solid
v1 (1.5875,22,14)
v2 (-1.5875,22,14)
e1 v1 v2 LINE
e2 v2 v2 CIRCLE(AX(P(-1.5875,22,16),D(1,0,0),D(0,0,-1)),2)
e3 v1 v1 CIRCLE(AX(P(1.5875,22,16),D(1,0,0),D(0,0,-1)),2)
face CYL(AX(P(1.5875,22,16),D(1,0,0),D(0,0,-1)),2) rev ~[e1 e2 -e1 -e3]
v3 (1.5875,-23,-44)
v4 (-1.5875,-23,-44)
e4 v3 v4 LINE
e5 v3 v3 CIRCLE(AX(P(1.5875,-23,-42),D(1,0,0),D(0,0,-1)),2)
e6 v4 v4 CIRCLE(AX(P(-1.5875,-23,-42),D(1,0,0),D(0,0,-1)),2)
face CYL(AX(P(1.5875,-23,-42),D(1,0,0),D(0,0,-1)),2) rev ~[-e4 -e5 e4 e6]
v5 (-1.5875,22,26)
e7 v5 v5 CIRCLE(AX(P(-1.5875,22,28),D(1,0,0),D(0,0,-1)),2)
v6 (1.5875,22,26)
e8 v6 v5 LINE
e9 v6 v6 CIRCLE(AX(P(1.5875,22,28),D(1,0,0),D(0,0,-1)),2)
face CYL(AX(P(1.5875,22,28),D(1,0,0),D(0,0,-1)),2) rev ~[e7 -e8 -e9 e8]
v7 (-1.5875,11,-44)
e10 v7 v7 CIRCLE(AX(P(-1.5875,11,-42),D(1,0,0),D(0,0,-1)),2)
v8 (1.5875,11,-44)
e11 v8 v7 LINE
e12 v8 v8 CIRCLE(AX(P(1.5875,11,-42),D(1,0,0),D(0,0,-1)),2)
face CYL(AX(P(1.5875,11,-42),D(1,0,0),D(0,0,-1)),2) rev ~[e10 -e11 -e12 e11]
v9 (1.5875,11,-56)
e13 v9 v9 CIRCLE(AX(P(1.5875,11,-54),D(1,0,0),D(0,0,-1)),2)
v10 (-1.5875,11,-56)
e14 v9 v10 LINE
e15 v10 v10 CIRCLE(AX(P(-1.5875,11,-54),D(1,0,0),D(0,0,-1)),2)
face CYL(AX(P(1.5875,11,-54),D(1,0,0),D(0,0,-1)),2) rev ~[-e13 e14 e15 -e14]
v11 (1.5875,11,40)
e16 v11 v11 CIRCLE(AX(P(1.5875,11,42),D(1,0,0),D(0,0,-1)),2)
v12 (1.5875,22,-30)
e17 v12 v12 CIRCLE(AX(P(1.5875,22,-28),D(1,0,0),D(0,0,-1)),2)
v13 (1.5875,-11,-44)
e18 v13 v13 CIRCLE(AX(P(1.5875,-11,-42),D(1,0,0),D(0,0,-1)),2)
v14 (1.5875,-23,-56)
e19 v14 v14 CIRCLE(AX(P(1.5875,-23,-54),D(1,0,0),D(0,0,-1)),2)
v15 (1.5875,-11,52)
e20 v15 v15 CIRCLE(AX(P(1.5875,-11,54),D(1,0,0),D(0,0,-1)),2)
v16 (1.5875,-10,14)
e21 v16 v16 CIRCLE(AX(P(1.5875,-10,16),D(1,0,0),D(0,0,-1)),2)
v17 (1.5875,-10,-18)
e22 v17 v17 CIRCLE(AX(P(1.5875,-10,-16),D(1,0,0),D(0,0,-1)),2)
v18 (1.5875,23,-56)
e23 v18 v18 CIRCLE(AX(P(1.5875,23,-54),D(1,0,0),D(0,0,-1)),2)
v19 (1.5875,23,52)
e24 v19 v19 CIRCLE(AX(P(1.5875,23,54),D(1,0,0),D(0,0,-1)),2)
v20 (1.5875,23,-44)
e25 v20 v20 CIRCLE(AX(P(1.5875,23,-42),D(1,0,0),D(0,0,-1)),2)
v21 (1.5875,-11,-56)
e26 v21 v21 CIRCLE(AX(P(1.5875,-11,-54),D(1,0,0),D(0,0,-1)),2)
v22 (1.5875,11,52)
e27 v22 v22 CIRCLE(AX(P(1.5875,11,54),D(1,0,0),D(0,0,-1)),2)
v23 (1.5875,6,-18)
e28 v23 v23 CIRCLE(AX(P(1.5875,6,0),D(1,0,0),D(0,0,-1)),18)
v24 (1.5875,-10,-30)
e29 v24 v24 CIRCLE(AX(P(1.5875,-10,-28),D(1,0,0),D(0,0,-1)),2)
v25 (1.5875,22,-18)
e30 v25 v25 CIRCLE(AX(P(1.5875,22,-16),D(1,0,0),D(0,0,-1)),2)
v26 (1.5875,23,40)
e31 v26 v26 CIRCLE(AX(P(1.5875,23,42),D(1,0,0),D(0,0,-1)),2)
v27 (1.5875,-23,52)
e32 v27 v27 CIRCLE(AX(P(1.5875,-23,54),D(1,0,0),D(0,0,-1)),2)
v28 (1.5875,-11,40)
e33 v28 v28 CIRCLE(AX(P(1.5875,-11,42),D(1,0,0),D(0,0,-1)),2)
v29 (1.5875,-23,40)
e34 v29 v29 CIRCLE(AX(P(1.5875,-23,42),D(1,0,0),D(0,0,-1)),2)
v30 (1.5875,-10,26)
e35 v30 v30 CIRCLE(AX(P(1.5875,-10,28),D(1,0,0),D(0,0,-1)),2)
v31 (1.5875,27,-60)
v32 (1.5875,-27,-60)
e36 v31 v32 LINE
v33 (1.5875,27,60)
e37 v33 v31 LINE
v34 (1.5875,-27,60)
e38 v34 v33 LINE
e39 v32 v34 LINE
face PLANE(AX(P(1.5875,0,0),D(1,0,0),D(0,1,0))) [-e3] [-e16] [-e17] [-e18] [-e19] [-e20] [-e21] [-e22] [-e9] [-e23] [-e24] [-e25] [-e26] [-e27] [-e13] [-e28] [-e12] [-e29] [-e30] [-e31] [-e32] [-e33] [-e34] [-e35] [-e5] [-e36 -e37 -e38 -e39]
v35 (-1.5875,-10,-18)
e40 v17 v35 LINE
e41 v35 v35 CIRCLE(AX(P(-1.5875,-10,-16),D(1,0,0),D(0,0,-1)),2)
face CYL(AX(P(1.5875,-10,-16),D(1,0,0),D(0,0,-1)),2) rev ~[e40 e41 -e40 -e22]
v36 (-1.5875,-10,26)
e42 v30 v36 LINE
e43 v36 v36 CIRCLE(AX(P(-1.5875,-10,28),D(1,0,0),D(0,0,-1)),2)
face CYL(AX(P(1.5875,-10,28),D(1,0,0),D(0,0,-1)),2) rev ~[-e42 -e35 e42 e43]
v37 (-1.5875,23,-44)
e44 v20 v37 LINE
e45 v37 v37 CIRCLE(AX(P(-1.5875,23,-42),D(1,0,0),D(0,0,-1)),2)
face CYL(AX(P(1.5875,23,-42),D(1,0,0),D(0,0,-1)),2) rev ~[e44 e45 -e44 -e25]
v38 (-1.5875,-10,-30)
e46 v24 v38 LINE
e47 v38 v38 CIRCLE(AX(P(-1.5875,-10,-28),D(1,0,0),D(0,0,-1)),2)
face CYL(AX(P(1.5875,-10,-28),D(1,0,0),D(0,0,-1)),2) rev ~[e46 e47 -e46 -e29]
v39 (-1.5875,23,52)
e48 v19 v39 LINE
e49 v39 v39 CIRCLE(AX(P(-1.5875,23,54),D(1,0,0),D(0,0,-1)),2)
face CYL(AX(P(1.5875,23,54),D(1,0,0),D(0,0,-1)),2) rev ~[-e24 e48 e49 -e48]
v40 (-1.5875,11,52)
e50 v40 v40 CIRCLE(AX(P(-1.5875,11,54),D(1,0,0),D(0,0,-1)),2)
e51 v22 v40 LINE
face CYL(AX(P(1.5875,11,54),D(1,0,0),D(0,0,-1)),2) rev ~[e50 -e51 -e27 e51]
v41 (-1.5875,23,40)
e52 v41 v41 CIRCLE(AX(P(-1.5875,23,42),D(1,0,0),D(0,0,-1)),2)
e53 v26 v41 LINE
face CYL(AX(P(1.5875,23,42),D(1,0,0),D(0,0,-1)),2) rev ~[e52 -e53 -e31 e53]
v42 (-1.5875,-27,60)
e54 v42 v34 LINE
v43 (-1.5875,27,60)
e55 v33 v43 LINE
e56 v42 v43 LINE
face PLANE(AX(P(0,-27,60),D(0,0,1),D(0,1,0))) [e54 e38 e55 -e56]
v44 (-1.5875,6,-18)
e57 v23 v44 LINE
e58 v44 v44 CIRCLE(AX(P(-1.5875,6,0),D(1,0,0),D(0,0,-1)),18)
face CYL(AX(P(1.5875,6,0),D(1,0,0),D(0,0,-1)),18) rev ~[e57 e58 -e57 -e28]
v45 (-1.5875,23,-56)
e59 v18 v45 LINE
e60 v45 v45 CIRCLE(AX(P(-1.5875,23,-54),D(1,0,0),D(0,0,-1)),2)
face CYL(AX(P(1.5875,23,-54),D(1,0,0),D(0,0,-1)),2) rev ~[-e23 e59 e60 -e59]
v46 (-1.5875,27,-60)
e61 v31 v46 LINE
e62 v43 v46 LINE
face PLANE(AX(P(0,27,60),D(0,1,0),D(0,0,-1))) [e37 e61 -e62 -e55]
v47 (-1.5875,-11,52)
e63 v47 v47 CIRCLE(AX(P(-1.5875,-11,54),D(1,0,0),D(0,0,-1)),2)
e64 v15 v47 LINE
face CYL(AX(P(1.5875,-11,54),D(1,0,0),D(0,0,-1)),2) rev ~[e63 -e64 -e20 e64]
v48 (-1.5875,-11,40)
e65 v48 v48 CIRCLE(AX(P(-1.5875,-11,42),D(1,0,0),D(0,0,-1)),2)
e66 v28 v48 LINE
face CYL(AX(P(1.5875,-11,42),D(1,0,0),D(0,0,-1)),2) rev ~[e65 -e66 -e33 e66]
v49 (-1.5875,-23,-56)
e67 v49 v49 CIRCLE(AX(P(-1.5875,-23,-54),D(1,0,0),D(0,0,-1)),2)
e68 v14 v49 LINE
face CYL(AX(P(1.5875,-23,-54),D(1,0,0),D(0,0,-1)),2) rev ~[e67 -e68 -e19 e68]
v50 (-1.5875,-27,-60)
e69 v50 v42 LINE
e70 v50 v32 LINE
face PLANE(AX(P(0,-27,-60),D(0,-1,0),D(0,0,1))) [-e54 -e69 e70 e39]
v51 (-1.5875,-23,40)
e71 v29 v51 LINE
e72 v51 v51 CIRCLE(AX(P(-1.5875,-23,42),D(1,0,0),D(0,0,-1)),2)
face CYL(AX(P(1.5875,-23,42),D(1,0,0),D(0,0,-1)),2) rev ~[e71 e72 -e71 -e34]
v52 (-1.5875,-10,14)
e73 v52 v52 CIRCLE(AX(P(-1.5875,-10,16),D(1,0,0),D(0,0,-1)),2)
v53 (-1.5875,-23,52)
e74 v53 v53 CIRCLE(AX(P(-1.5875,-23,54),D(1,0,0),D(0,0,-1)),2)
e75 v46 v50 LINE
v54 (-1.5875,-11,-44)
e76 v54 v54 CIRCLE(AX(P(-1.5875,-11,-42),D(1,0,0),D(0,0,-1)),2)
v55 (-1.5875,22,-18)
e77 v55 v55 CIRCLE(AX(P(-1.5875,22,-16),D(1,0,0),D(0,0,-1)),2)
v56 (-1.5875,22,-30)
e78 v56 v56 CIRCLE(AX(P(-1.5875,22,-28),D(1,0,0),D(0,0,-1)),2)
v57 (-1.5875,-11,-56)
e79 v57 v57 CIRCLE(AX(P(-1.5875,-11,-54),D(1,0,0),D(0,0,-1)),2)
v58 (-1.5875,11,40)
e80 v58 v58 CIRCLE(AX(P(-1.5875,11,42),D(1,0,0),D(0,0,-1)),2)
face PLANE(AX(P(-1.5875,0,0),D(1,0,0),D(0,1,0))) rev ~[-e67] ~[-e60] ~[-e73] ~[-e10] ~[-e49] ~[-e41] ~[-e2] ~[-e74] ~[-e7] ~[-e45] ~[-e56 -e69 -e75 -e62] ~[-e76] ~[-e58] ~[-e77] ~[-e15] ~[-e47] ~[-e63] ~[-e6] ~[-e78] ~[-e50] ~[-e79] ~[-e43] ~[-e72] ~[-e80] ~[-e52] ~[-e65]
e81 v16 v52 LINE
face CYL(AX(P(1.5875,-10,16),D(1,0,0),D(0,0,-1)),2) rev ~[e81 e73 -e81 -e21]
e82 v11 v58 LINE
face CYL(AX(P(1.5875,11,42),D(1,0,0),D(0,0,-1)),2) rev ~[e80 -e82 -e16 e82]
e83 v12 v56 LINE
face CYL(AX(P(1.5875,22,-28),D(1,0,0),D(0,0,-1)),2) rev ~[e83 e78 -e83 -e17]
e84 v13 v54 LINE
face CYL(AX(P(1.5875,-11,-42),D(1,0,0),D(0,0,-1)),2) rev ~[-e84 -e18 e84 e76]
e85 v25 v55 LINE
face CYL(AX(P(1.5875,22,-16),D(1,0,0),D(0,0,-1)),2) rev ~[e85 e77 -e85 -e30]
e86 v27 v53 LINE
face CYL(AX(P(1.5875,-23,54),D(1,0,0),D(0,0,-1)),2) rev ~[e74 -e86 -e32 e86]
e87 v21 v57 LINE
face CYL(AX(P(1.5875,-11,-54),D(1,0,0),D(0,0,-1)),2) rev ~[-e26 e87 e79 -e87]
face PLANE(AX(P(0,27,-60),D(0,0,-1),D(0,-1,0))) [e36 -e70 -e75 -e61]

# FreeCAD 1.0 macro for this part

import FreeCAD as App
import Part
import Sketcher

doc = App.newDocument("Part")
body = doc.addObject("PartDesign::Body", "Body")

sketch1 = body.newObject("Sketcher::SketchObject", "Sketch")
sketch1.AttachmentSupport = (doc.getObject("YZ_Plane"), [""])
sketch1.MapMode = "FlatFace"
sketch1.addGeometry(Part.LineSegment(App.Vector(27, 60, 0), App.Vector(-27, 60, 0)), False)
sketch1.addGeometry(Part.LineSegment(App.Vector(-27, 60, 0), App.Vector(-27, -60, 0)), False)
sketch1.addGeometry(Part.LineSegment(App.Vector(-27, -60, 0), App.Vector(27, -60, 0)), False)
sketch1.addGeometry(Part.LineSegment(App.Vector(27, -60, 0), App.Vector(27, 60, 0)), False)
sketch1.addConstraint(Sketcher.Constraint("Coincident", 0, 2, 1, 1))
sketch1.addConstraint(Sketcher.Constraint("Coincident", 1, 2, 2, 1))
sketch1.addConstraint(Sketcher.Constraint("Coincident", 2, 2, 3, 1))
sketch1.addConstraint(Sketcher.Constraint("Coincident", 3, 2, 0, 1))
sketch1.addConstraint(Sketcher.Constraint("Horizontal", 0))
sketch1.addConstraint(Sketcher.Constraint("Vertical", 1))
sketch1.addConstraint(Sketcher.Constraint("Horizontal", 2))
sketch1.addConstraint(Sketcher.Constraint("Vertical", 3))
sketch1.addConstraint(Sketcher.Constraint("Symmetric", 0, 2, 2, 2, -1, 1))
sketch1.addConstraint(Sketcher.Constraint("DistanceX", 0, 2, 0, 1, 54.0))
sketch1.addConstraint(Sketcher.Constraint("DistanceY", 1, 2, 1, 1, 120.0))
pad1 = body.newObject("PartDesign::Pad", "Pad")
pad1.Profile = sketch1
pad1.Length = 3.175
pad1.Midplane = True

sketch2 = body.newObject("Sketcher::SketchObject", "Sketch001")
sketch2.AttachmentSupport = (doc.getObject("YZ_Plane"), [""])
sketch2.MapMode = "FlatFace"
sketch2.AttachmentOffset = App.Placement(App.Vector(0, 0, 1.5875), App.Rotation())
sketch2.addGeometry(Part.Circle(App.Vector(-23, 54, 0), App.Vector(0, 0, 1), 2), False)
sketch2.addGeometry(Part.Circle(App.Vector(-23, 42, 0), App.Vector(0, 0, 1), 2), False)
sketch2.addGeometry(Part.Circle(App.Vector(-11, 42, 0), App.Vector(0, 0, 1), 2), False)
sketch2.addGeometry(Part.Circle(App.Vector(-11, 54, 0), App.Vector(0, 0, 1), 2), False)
sketch2.addGeometry(Part.Circle(App.Vector(-23, -54, 0), App.Vector(0, 0, 1), 2), False)
sketch2.addGeometry(Part.Circle(App.Vector(-23, -42, 0), App.Vector(0, 0, 1), 2), False)
sketch2.addGeometry(Part.Circle(App.Vector(-11, -42, 0), App.Vector(0, 0, 1), 2), False)
sketch2.addGeometry(Part.Circle(App.Vector(-11, -54, 0), App.Vector(0, 0, 1), 2), False)
sketch2.addGeometry(Part.Circle(App.Vector(23, 54, 0), App.Vector(0, 0, 1), 2), False)
sketch2.addGeometry(Part.Circle(App.Vector(23, 42, 0), App.Vector(0, 0, 1), 2), False)
sketch2.addGeometry(Part.Circle(App.Vector(11, 42, 0), App.Vector(0, 0, 1), 2), False)
sketch2.addGeometry(Part.Circle(App.Vector(11, 54, 0), App.Vector(0, 0, 1), 2), False)
sketch2.addGeometry(Part.Circle(App.Vector(11, -54, 0), App.Vector(0, 0, 1), 2), False)
sketch2.addGeometry(Part.Circle(App.Vector(11, -42, 0), App.Vector(0, 0, 1), 2), False)
sketch2.addGeometry(Part.Circle(App.Vector(23, -54, 0), App.Vector(0, 0, 1), 2), False)
sketch2.addGeometry(Part.Circle(App.Vector(23, -42, 0), App.Vector(0, 0, 1), 2), False)
sketch2.addConstraint(Sketcher.Constraint("Equal", 0, 1))
sketch2.addConstraint(Sketcher.Constraint("Equal", 1, 2))
sketch2.addConstraint(Sketcher.Constraint("Equal", 2, 3))
sketch2.addConstraint(Sketcher.Constraint("Equal", 3, 4))
sketch2.addConstraint(Sketcher.Constraint("Equal", 4, 5))
sketch2.addConstraint(Sketcher.Constraint("Equal", 5, 6))
sketch2.addConstraint(Sketcher.Constraint("Equal", 6, 7))
sketch2.addConstraint(Sketcher.Constraint("Equal", 7, 8))
sketch2.addConstraint(Sketcher.Constraint("Equal", 8, 9))
sketch2.addConstraint(Sketcher.Constraint("Equal", 9, 10))
sketch2.addConstraint(Sketcher.Constraint("Equal", 10, 11))
sketch2.addConstraint(Sketcher.Constraint("Equal", 11, 12))
sketch2.addConstraint(Sketcher.Constraint("Equal", 12, 13))
sketch2.addConstraint(Sketcher.Constraint("Equal", 13, 14))
sketch2.addConstraint(Sketcher.Constraint("Equal", 14, 15))
sketch2.addConstraint(Sketcher.Constraint("Symmetric", 4, 3, 8, 3, -1, 1))
sketch2.addConstraint(Sketcher.Constraint("Symmetric", 5, 3, 9, 3, -1, 1))
sketch2.addConstraint(Sketcher.Constraint("Symmetric", 6, 3, 10, 3, -1, 1))
sketch2.addConstraint(Sketcher.Constraint("Symmetric", 7, 3, 11, 3, -1, 1))
sketch2.addConstraint(Sketcher.Constraint("Symmetric", 3, 3, 12, 3, -1, 1))
sketch2.addConstraint(Sketcher.Constraint("Symmetric", 2, 3, 13, 3, -1, 1))
sketch2.addConstraint(Sketcher.Constraint("Symmetric", 0, 3, 14, 3, -1, 1))
sketch2.addConstraint(Sketcher.Constraint("Symmetric", 1, 3, 15, 3, -1, 1))
sketch2.addConstraint(Sketcher.Constraint("Symmetric", 0, 3, 8, 3, -2))
sketch2.addConstraint(Sketcher.Constraint("Symmetric", 1, 3, 9, 3, -2))
sketch2.addConstraint(Sketcher.Constraint("Symmetric", 2, 3, 10, 3, -2))
sketch2.addConstraint(Sketcher.Constraint("Symmetric", 3, 3, 11, 3, -2))
sketch2.addConstraint(Sketcher.Constraint("Horizontal", 1, 3, 2, 3))
sketch2.addConstraint(Sketcher.Constraint("Horizontal", 0, 3, 3, 3))
sketch2.addConstraint(Sketcher.Constraint("Vertical", 0, 3, 1, 3))
sketch2.addConstraint(Sketcher.Constraint("Vertical", 2, 3, 3, 3))
sketch2.addConstraint(Sketcher.Constraint("Diameter", 0, 4.0))
sketch2.addConstraint(Sketcher.Constraint("DistanceX", 0, 3, -1, 1, 23.0))
sketch2.addConstraint(Sketcher.Constraint("DistanceY", -1, 1, 0, 3, 54.0))
sketch2.addConstraint(Sketcher.Constraint("DistanceY", -1, 1, 1, 3, 42.0))
sketch2.addConstraint(Sketcher.Constraint("DistanceX", 2, 3, -1, 1, 11.0))
pocket1 = body.newObject("PartDesign::Pocket", "Pocket")
pocket1.Profile = sketch2
pocket1.Type = "ThroughAll"

sketch3 = body.newObject("Sketcher::SketchObject", "Sketch002")
sketch3.AttachmentSupport = (doc.getObject("YZ_Plane"), [""])
sketch3.MapMode = "FlatFace"
sketch3.AttachmentOffset = App.Placement(App.Vector(0, 0, 1.5875), App.Rotation())
sketch3.addGeometry(Part.Circle(App.Vector(6, 0, 0), App.Vector(0, 0, 1), 18), False)
sketch3.addGeometry(Part.Circle(App.Vector(22, 28, 0), App.Vector(0, 0, 1), 2), False)
sketch3.addGeometry(Part.Circle(App.Vector(22, 16, 0), App.Vector(0, 0, 1), 2), False)
sketch3.addGeometry(Part.Circle(App.Vector(22, -28, 0), App.Vector(0, 0, 1), 2), False)
sketch3.addGeometry(Part.Circle(App.Vector(-10, 28, 0), App.Vector(0, 0, 1), 2), False)
sketch3.addGeometry(Part.Circle(App.Vector(-10, -28, 0), App.Vector(0, 0, 1), 2), False)
sketch3.addGeometry(Part.Circle(App.Vector(-10, 16, 0), App.Vector(0, 0, 1), 2), False)
sketch3.addGeometry(Part.Circle(App.Vector(-10, -16, 0), App.Vector(0, 0, 1), 2), False)
sketch3.addGeometry(Part.Circle(App.Vector(22, -16, 0), App.Vector(0, 0, 1), 2), False)
sketch3.addConstraint(Sketcher.Constraint("Equal", 1, 2))
sketch3.addConstraint(Sketcher.Constraint("Equal", 2, 3))
sketch3.addConstraint(Sketcher.Constraint("Equal", 3, 4))
sketch3.addConstraint(Sketcher.Constraint("Equal", 4, 5))
sketch3.addConstraint(Sketcher.Constraint("Equal", 5, 6))
sketch3.addConstraint(Sketcher.Constraint("Equal", 6, 7))
sketch3.addConstraint(Sketcher.Constraint("Equal", 7, 8))
sketch3.addConstraint(Sketcher.Constraint("Symmetric", 1, 3, 3, 3, -1))
sketch3.addConstraint(Sketcher.Constraint("Symmetric", 4, 3, 5, 3, -1))
sketch3.addConstraint(Sketcher.Constraint("Symmetric", 6, 3, 7, 3, -1))
sketch3.addConstraint(Sketcher.Constraint("Symmetric", 2, 3, 8, 3, -1))
sketch3.addConstraint(Sketcher.Constraint("PointOnObject", 0, 3, -1))
sketch3.addConstraint(Sketcher.Constraint("Horizontal", 1, 3, 4, 3))
sketch3.addConstraint(Sketcher.Constraint("Horizontal", 2, 3, 6, 3))
sketch3.addConstraint(Sketcher.Constraint("Vertical", 1, 3, 2, 3))
sketch3.addConstraint(Sketcher.Constraint("Vertical", 5, 3, 6, 3))
sketch3.addConstraint(Sketcher.Constraint("Diameter", 0, 36.0))
sketch3.addConstraint(Sketcher.Constraint("Diameter", 1, 4.0))
sketch3.addConstraint(Sketcher.Constraint("DistanceX", -1, 1, 0, 3, 6.0))
sketch3.addConstraint(Sketcher.Constraint("DistanceY", -1, 1, 1, 3, 28.0))
sketch3.addConstraint(Sketcher.Constraint("DistanceY", -1, 1, 2, 3, 16.0))
sketch3.addConstraint(Sketcher.Constraint("DistanceX", 0, 3, 1, 3, 16.0))
sketch3.addConstraint(Sketcher.Constraint("DistanceX", 4, 3, 0, 3, 16.0))
pocket2 = body.newObject("PartDesign::Pocket", "Pocket001")
pocket2.Profile = sketch3
pocket2.Type = "ThroughAll"

doc.recompute()
